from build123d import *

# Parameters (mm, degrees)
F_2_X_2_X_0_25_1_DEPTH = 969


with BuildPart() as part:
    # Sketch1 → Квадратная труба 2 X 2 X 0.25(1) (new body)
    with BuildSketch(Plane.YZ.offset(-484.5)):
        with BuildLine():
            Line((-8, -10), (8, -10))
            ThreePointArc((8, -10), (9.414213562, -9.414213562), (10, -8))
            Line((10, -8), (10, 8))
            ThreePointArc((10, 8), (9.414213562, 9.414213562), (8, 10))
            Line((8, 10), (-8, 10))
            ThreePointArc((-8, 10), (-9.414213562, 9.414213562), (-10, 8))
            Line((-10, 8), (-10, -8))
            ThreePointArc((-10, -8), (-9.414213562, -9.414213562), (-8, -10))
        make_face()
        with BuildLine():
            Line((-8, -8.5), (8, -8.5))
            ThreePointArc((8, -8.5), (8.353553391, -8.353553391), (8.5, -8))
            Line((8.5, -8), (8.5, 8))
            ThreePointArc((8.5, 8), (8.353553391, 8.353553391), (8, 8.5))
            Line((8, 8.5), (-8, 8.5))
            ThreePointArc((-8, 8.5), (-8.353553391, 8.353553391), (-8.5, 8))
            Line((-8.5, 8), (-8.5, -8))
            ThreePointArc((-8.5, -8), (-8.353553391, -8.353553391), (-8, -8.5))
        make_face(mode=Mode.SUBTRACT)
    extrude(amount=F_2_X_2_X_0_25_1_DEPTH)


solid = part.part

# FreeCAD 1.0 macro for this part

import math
import FreeCAD as App
import Part
import Sketcher

doc = App.newDocument("Part")
body = doc.addObject("PartDesign::Body", "Body")

sketch1 = body.newObject("Sketcher::SketchObject", "Sketch")
sketch1.AttachmentSupport = (doc.getObject("YZ_Plane"), [""])
sketch1.MapMode = "FlatFace"
sketch1.AttachmentOffset = App.Placement(App.Vector(0, 0, -484.5), App.Rotation())
sketch1.addGeometry(Part.LineSegment(App.Vector(-8, -10, 0), App.Vector(8, -10, 0)), False)
sketch1.addGeometry(Part.ArcOfCircle(Part.Circle(App.Vector(8, -8, 0), App.Vector(0, 0, 1), 2), math.radians(-90), math.radians(0)), False)
sketch1.addGeometry(Part.LineSegment(App.Vector(10, -8, 0), App.Vector(10, 8, 0)), False)
sketch1.addGeometry(Part.ArcOfCircle(Part.Circle(App.Vector(8, 8, 0), App.Vector(0, 0, 1), 2), math.radians(0), math.radians(90)), False)
sketch1.addGeometry(Part.LineSegment(App.Vector(8, 10, 0), App.Vector(-8, 10, 0)), False)
sketch1.addGeometry(Part.ArcOfCircle(Part.Circle(App.Vector(-8, 8, 0), App.Vector(0, 0, 1), 2), math.radians(90), math.radians(180)), False)
sketch1.addGeometry(Part.LineSegment(App.Vector(-10, 8, 0), App.Vector(-10, -8, 0)), False)
sketch1.addGeometry(Part.ArcOfCircle(Part.Circle(App.Vector(-8, -8, 0), App.Vector(0, 0, 1), 2), math.radians(-180), math.radians(-90)), False)
sketch1.addGeometry(Part.LineSegment(App.Vector(8, -8.5, 0), App.Vector(-8, -8.5, 0)), False)
sketch1.addGeometry(Part.ArcOfCircle(Part.Circle(App.Vector(-8, -8, 0), App.Vector(0, 0, 1), 0.5), math.radians(180), math.radians(270)), False)
sketch1.addGeometry(Part.LineSegment(App.Vector(-8.5, -8, 0), App.Vector(-8.5, 8, 0)), False)
sketch1.addGeometry(Part.ArcOfCircle(Part.Circle(App.Vector(-8, 8, 0), App.Vector(0, 0, 1), 0.5), math.radians(90), math.radians(180)), False)
sketch1.addGeometry(Part.LineSegment(App.Vector(-8, 8.5, 0), App.Vector(8, 8.5, 0)), False)
sketch1.addGeometry(Part.ArcOfCircle(Part.Circle(App.Vector(8, 8, 0), App.Vector(0, 0, 1), 0.5), math.radians(0), math.radians(90)), False)
sketch1.addGeometry(Part.LineSegment(App.Vector(8.5, 8, 0), App.Vector(8.5, -8, 0)), False)
sketch1.addGeometry(Part.ArcOfCircle(Part.Circle(App.Vector(8, -8, 0), App.Vector(0, 0, 1), 0.5), math.radians(-90), math.radians(0)), False)
sketch1.addConstraint(Sketcher.Constraint("Tangent", 0, 2, 1, 1))
sketch1.addConstraint(Sketcher.Constraint("Tangent", 1, 2, 2, 1))
sketch1.addConstraint(Sketcher.Constraint("Tangent", 2, 2, 3, 1))
sketch1.addConstraint(Sketcher.Constraint("Tangent", 3, 2, 4, 1))
sketch1.addConstraint(Sketcher.Constraint("Tangent", 4, 2, 5, 1))
sketch1.addConstraint(Sketcher.Constraint("Tangent", 5, 2, 6, 1))
sketch1.addConstraint(Sketcher.Constraint("Tangent", 6, 2, 7, 1))
sketch1.addConstraint(Sketcher.Constraint("Tangent", 7, 2, 0, 1))
sketch1.addConstraint(Sketcher.Constraint("Tangent", 8, 2, 9, 2))
sketch1.addConstraint(Sketcher.Constraint("Tangent", 9, 1, 10, 1))
sketch1.addConstraint(Sketcher.Constraint("Tangent", 10, 2, 11, 2))
sketch1.addConstraint(Sketcher.Constraint("Tangent", 11, 1, 12, 1))
sketch1.addConstraint(Sketcher.Constraint("Tangent", 12, 2, 13, 2))
sketch1.addConstraint(Sketcher.Constraint("Tangent", 13, 1, 14, 1))
sketch1.addConstraint(Sketcher.Constraint("Tangent", 14, 2, 15, 2))
sketch1.addConstraint(Sketcher.Constraint("Tangent", 15, 1, 8, 1))
sketch1.addConstraint(Sketcher.Constraint("Horizontal", 0))
sketch1.addConstraint(Sketcher.Constraint("Vertical", 2))
sketch1.addConstraint(Sketcher.Constraint("Horizontal", 4))
sketch1.addConstraint(Sketcher.Constraint("Vertical", 6))
sketch1.addConstraint(Sketcher.Constraint("Horizontal", 8))
sketch1.addConstraint(Sketcher.Constraint("Vertical", 10))
sketch1.addConstraint(Sketcher.Constraint("Horizontal", 12))
sketch1.addConstraint(Sketcher.Constraint("Vertical", 14))
sketch1.addConstraint(Sketcher.Constraint("Coincident", 9, 3, 7, 3))
sketch1.addConstraint(Sketcher.Constraint("Coincident", 11, 3, 5, 3))
sketch1.addConstraint(Sketcher.Constraint("Coincident", 13, 3, 3, 3))
sketch1.addConstraint(Sketcher.Constraint("Equal", 1, 3))
sketch1.addConstraint(Sketcher.Constraint("Equal", 3, 5))
sketch1.addConstraint(Sketcher.Constraint("Equal", 5, 7))
sketch1.addConstraint(Sketcher.Constraint("Equal", 13, 15))
sketch1.addConstraint(Sketcher.Constraint("Symmetric", 1, 3, 5, 3, -1, 1))
sketch1.addConstraint(Sketcher.Constraint("Equal", 12, 2))
sketch1.addConstraint(Sketcher.Constraint("Radius", 1, 2.0))
sketch1.addConstraint(Sketcher.Constraint("Radius", 9, 0.5))
sketch1.addConstraint(Sketcher.Constraint("DistanceX", 0, 1, 0, 2, 16.0))
pad1 = body.newObject("PartDesign::Pad", "Pad")
pad1.Profile = sketch1
pad1.Length = 969

doc.recompute()
